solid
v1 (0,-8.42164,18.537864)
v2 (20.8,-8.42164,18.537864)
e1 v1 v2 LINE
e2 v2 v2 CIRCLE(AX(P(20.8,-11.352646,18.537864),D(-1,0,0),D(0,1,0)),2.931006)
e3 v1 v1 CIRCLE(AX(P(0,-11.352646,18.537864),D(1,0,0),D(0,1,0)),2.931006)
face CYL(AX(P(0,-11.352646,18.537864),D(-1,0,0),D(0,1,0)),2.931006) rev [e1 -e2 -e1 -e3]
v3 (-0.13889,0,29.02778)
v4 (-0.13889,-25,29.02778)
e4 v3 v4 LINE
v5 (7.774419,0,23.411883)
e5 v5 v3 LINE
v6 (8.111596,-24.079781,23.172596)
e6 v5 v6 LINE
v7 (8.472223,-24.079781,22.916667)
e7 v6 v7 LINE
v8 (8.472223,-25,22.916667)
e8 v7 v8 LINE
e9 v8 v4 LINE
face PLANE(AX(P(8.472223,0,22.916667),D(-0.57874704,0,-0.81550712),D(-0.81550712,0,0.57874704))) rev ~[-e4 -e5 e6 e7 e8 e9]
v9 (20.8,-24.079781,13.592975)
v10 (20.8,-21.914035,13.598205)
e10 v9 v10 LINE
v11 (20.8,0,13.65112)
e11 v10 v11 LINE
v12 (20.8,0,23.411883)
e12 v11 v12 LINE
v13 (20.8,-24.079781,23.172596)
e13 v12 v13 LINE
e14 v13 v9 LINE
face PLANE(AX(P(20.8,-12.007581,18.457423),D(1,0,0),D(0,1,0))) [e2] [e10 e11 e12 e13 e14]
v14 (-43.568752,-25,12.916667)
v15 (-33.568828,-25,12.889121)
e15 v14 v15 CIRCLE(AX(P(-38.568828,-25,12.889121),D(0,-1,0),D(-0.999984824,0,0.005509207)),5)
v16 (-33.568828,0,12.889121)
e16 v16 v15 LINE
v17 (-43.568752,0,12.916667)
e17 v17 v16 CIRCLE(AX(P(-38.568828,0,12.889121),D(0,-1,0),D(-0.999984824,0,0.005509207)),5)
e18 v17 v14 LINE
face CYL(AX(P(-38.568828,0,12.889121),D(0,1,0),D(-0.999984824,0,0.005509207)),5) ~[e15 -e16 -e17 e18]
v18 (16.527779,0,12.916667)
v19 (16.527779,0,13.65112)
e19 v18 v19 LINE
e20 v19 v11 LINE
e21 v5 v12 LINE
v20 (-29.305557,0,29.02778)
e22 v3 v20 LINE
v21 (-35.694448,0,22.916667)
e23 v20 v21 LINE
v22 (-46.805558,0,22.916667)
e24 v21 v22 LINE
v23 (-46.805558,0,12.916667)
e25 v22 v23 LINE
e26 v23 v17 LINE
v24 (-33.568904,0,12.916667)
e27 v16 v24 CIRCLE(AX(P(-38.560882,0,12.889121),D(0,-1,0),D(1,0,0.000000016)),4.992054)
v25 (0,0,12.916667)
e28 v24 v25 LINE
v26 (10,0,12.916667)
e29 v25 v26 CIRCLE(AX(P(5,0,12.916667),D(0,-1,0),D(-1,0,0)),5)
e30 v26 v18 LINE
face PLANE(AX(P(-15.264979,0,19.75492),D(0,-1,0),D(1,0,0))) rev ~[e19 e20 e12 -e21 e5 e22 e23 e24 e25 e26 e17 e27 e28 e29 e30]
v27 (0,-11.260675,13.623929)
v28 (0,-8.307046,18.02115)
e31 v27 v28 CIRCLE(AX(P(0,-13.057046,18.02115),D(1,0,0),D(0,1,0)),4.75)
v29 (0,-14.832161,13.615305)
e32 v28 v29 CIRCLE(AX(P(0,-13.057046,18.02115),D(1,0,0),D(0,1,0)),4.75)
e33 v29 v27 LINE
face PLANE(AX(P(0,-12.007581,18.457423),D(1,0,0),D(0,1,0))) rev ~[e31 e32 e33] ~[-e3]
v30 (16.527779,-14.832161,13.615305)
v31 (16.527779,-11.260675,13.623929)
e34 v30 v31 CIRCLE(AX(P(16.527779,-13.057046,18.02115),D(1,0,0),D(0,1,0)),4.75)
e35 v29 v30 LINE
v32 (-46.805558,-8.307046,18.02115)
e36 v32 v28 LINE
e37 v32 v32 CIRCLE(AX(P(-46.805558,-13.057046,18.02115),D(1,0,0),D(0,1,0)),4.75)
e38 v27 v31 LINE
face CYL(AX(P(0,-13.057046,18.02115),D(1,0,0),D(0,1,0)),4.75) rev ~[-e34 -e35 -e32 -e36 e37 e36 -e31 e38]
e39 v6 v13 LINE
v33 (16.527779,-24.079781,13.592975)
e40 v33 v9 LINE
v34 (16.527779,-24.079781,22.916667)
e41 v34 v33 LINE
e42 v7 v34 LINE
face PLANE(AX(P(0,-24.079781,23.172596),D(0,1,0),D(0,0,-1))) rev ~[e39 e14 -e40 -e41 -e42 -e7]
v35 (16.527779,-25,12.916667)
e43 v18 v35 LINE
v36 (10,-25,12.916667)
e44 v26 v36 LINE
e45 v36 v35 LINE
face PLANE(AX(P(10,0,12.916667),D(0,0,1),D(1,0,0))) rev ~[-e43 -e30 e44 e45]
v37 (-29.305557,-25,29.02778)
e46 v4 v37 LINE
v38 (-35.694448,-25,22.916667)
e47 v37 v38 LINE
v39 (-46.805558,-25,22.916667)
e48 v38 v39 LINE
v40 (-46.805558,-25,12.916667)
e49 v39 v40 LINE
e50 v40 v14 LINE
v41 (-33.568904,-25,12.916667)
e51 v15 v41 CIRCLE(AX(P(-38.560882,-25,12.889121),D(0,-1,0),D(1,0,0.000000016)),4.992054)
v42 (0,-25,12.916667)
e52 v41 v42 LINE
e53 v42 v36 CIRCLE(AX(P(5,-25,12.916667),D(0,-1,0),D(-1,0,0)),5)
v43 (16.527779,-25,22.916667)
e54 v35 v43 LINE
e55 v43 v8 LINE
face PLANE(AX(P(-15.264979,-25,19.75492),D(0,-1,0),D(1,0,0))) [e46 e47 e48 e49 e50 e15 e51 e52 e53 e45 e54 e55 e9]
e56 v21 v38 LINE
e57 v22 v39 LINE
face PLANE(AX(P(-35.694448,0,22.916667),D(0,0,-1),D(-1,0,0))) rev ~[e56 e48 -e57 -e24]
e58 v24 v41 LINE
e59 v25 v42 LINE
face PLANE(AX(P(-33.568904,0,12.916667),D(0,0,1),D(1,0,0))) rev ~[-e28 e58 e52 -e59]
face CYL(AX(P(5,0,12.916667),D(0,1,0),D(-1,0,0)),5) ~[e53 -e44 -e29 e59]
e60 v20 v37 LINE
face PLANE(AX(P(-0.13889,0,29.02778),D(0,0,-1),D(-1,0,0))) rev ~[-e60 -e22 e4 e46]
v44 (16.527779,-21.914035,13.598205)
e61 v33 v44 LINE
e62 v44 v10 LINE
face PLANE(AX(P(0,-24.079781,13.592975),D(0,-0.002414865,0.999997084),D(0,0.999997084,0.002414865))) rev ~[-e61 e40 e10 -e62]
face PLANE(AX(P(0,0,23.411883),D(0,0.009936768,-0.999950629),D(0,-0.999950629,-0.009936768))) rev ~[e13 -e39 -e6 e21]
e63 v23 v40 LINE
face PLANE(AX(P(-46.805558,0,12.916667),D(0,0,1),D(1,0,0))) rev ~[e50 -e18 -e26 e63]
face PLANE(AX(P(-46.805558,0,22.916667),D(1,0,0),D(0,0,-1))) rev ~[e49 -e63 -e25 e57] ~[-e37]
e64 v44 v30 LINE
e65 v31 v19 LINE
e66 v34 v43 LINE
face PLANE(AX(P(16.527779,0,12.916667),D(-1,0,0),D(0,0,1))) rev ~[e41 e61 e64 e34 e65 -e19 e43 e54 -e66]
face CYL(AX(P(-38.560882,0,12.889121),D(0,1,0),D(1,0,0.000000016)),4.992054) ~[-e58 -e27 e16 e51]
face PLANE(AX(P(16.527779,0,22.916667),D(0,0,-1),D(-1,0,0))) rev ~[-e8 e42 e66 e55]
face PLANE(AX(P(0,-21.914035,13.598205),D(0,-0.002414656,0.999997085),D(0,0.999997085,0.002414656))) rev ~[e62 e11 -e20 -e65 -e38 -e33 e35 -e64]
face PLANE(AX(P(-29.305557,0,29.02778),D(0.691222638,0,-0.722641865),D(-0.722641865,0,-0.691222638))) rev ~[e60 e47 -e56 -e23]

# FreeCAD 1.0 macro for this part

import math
import FreeCAD as App
import Part
import Sketcher

V = App.Vector

doc = App.newDocument("Part")
body = doc.addObject("PartDesign::Body", "Body")

# Sketch on XZ plane
sketch1 = doc.addObject("Sketcher::SketchObject", "Sketch")
body.addObject(sketch1)
sketch1.AttachmentSupport = (doc.XZ_Plane, [""])
sketch1.MapMode = "FlatFace"
sketch1.addGeometry(Part.LineSegment(V(-46.806, 22.917, 0), V(-46.806, 12.917, 0)), False)
sketch1.addGeometry(Part.LineSegment(V(-46.806, 12.917, 0), V(-43.569, 12.917, 0)), False)
sketch1.addGeometry(Part.ArcOfCircle(Part.Circle(V(-38.569, 12.889, 0), V(0, 0, 1), 5), math.radians(180), math.radians(360)), False)
sketch1.addGeometry(Part.ArcOfCircle(Part.Circle(V(-38.561, 12.889, 0), V(0, 0, 1), 4.992), math.radians(0), math.radians(0.32)), False)
sketch1.addGeometry(Part.LineSegment(V(-33.569, 12.917, 0), V(0, 12.917, 0)), False)
sketch1.addGeometry(Part.ArcOfCircle(Part.Circle(V(5, 12.917, 0), V(0, 0, 1), 5), math.radians(180), math.radians(360)), False)
sketch1.addGeometry(Part.LineSegment(V(10, 12.917, 0), V(16.528, 12.917, 0)), False)
sketch1.addGeometry(Part.LineSegment(V(16.528, 12.917, 0), V(16.528, 22.917, 0)), False)
sketch1.addGeometry(Part.LineSegment(V(16.528, 22.917, 0), V(8.472, 22.917, 0)), False)
sketch1.addGeometry(Part.LineSegment(V(8.472, 22.917, 0), V(-0.139, 29.028, 0)), False)
sketch1.addGeometry(Part.LineSegment(V(-0.139, 29.028, 0), V(-29.306, 29.028, 0)), False)
sketch1.addGeometry(Part.LineSegment(V(-29.306, 29.028, 0), V(-35.694, 22.917, 0)), False)
sketch1.addGeometry(Part.LineSegment(V(-35.694, 22.917, 0), V(-46.806, 22.917, 0)), False)
sketch1.addConstraint(Sketcher.Constraint("Coincident", 0, 2, 1, 1))
sketch1.addConstraint(Sketcher.Constraint("Coincident", 1, 2, 2, 1))
sketch1.addConstraint(Sketcher.Constraint("Tangent", 2, 2, 3, 1))
sketch1.addConstraint(Sketcher.Constraint("Coincident", 3, 2, 4, 1))
sketch1.addConstraint(Sketcher.Constraint("Coincident", 4, 2, 5, 1))
sketch1.addConstraint(Sketcher.Constraint("Coincident", 5, 2, 6, 1))
sketch1.addConstraint(Sketcher.Constraint("Coincident", 6, 2, 7, 1))
sketch1.addConstraint(Sketcher.Constraint("Coincident", 7, 2, 8, 1))
sketch1.addConstraint(Sketcher.Constraint("Coincident", 8, 2, 9, 1))
sketch1.addConstraint(Sketcher.Constraint("Coincident", 9, 2, 10, 1))
sketch1.addConstraint(Sketcher.Constraint("Coincident", 10, 2, 11, 1))
sketch1.addConstraint(Sketcher.Constraint("Coincident", 11, 2, 12, 1))
sketch1.addConstraint(Sketcher.Constraint("Coincident", 12, 2, 0, 1))
sketch1.addConstraint(Sketcher.Constraint("Vertical", 0))
sketch1.addConstraint(Sketcher.Constraint("Horizontal", 1))
sketch1.addConstraint(Sketcher.Constraint("Horizontal", 4))
sketch1.addConstraint(Sketcher.Constraint("Horizontal", 6))
sketch1.addConstraint(Sketcher.Constraint("Vertical", 7))
sketch1.addConstraint(Sketcher.Constraint("Horizontal", 8))
sketch1.addConstraint(Sketcher.Constraint("Horizontal", 10))
sketch1.addConstraint(Sketcher.Constraint("Horizontal", 12))
sketch1.addConstraint(Sketcher.Constraint("Equal", 2, 5))
sketch1.addConstraint(Sketcher.Constraint("PointOnObject", 4, 2, -2))
sketch1.addConstraint(Sketcher.Constraint("Horizontal", 2, 3, 3, 3))
sketch1.addConstraint(Sketcher.Constraint("Horizontal", 5, 3, 0, 2))
sketch1.addConstraint(Sketcher.Constraint("Horizontal", 1, 2, 3, 2))
sketch1.addConstraint(Sketcher.Constraint("Horizontal", 4, 2, 5, 2))
sketch1.addConstraint(Sketcher.Constraint("Horizontal", 8, 2, 11, 2))
sketch1.addConstraint(Sketcher.Constraint("Radius", 2, 5.0))
sketch1.addConstraint(Sketcher.Constraint("DistanceY", 0, 2, 0, 1, 10.0))
sketch1.addConstraint(Sketcher.Constraint("Radius", 3, 4.992054))
sketch1.addConstraint(Sketcher.Constraint("DistanceX", 6, 1, 6, 2, 6.527779))
sketch1.addConstraint(Sketcher.Constraint("DistanceX", 12, 2, 12, 1, 11.11111))
sketch1.addConstraint(Sketcher.Constraint("Distance", 11, 8.84102))
sketch1.addConstraint(Sketcher.Constraint("DistanceX", 1, 1, 1, 2, 3.236806))
sketch1.addConstraint(Sketcher.Constraint("DistanceX", 4, 1, 4, 2, 33.568904))
sketch1.addConstraint(Sketcher.Constraint("DistanceX", 8, 2, 8, 1, 8.055556))
sketch1.addConstraint(Sketcher.Constraint("DistanceX", 10, 2, 10, 1, 29.166667))
sketch1.addConstraint(Sketcher.Constraint("DistanceY", -1, 1, 2, 3, 12.889121))
sketch1.addConstraint(Sketcher.Constraint("DistanceX", 9, 2, -1, 1, 0.13889))
sketch1.addConstraint(Sketcher.Constraint("DistanceY", -1, 1, 9, 2, 29.02778))
pad1 = doc.addObject("PartDesign::Pad", "Pad")
body.addObject(pad1)
pad1.Profile = sketch1
pad1.Length = 25

# Sketch on YZ plane
sketch2 = doc.addObject("Sketcher::SketchObject", "Sketch001")
body.addObject(sketch2)
sketch2.AttachmentSupport = (doc.YZ_Plane, [""])
sketch2.MapMode = "FlatFace"
sketch2.addGeometry(Part.Circle(V(-13.1, 18, 0), V(0, 0, 1), 4.8), False)
sketch2.addConstraint(Sketcher.Constraint("Diameter", 0, 9.5))
sketch2.addConstraint(Sketcher.Constraint("DistanceY", -1, 1, 0, 3, 18.02115))
sketch2.addConstraint(Sketcher.Constraint("DistanceX", 0, 3, -1, 1, 13.057046))
pocket1 = doc.addObject("PartDesign::Pocket", "Pocket")
body.addObject(pocket1)
pocket1.Profile = sketch2
pocket1.Length = 102.4
pocket1.Midplane = True

# Sketch on YZ plane
sketch3 = doc.addObject("Sketcher::SketchObject", "Sketch002")
body.addObject(sketch3)
sketch3.AttachmentSupport = (doc.YZ_Plane, [""])
sketch3.MapMode = "FlatFace"
sketch3.addGeometry(Part.LineSegment(V(0, 23.4, 0), V(-24.1, 23.2, 0)), False)
sketch3.addGeometry(Part.LineSegment(V(-24.1, 23.2, 0), V(-24.1, 13.6, 0)), False)
sketch3.addGeometry(Part.LineSegment(V(-24.1, 13.6, 0), V(-21.9, 13.6, 0)), False)
sketch3.addGeometry(Part.LineSegment(V(-21.9, 13.6, 0), V(0, 13.7, 0)), False)
sketch3.addGeometry(Part.LineSegment(V(0, 13.7, 0), V(0, 23.4, 0)), False)
sketch3.addConstraint(Sketcher.Constraint("Coincident", 0, 2, 1, 1))
sketch3.addConstraint(Sketcher.Constraint("Coincident", 1, 2, 2, 1))
sketch3.addConstraint(Sketcher.Constraint("Coincident", 2, 2, 3, 1))
sketch3.addConstraint(Sketcher.Constraint("Coincident", 3, 2, 4, 1))
sketch3.addConstraint(Sketcher.Constraint("Coincident", 4, 2, 0, 1))
sketch3.addConstraint(Sketcher.Constraint("Vertical", 1))
sketch3.addConstraint(Sketcher.Constraint("Vertical", 4))
sketch3.addConstraint(Sketcher.Constraint("PointOnObject", 3, 2, -2))
sketch3.addConstraint(Sketcher.Constraint("Parallel", 2, 3))
sketch3.addConstraint(Sketcher.Constraint("Distance", 3, 21.914099))
sketch3.addConstraint(Sketcher.Constraint("DistanceY", 1, 2, 1, 1, 9.579621))
sketch3.addConstraint(Sketcher.Constraint("Distance", 0, 24.08097))
sketch3.addConstraint(Sketcher.Constraint("DistanceY", 4, 1, 4, 2, 9.760763))
sketch3.addConstraint(Sketcher.Constraint("DistanceX", 0, 2, -1, 1, 24.079781))
sketch3.addConstraint(Sketcher.Constraint("DistanceY", -1, 1, 3, 2, 13.65112))
pad2 = doc.addObject("PartDesign::Pad", "Pad001")
body.addObject(pad2)
pad2.Profile = sketch3
pad2.Length = 20.8

# Sketch on YZ plane
sketch4 = doc.addObject("Sketcher::SketchObject", "Sketch003")
body.addObject(sketch4)
sketch4.AttachmentSupport = (doc.YZ_Plane, [""])
sketch4.MapMode = "FlatFace"
sketch4.addGeometry(Part.Circle(V(-11.4, 18.5, 0), V(0, 0, 1), 2.9), False)
sketch4.addConstraint(Sketcher.Constraint("Diameter", 0, 5.862012))
sketch4.addConstraint(Sketcher.Constraint("DistanceX", 0, 3, -1, 1, 11.352646))
sketch4.addConstraint(Sketcher.Constraint("DistanceY", -1, 1, 0, 3, 18.537864))
pocket2 = doc.addObject("PartDesign::Pocket", "Pocket001")
body.addObject(pocket2)
pocket2.Profile = sketch4
pocket2.Length = 45.7
pocket2.Reversed = True

doc.recompute()
